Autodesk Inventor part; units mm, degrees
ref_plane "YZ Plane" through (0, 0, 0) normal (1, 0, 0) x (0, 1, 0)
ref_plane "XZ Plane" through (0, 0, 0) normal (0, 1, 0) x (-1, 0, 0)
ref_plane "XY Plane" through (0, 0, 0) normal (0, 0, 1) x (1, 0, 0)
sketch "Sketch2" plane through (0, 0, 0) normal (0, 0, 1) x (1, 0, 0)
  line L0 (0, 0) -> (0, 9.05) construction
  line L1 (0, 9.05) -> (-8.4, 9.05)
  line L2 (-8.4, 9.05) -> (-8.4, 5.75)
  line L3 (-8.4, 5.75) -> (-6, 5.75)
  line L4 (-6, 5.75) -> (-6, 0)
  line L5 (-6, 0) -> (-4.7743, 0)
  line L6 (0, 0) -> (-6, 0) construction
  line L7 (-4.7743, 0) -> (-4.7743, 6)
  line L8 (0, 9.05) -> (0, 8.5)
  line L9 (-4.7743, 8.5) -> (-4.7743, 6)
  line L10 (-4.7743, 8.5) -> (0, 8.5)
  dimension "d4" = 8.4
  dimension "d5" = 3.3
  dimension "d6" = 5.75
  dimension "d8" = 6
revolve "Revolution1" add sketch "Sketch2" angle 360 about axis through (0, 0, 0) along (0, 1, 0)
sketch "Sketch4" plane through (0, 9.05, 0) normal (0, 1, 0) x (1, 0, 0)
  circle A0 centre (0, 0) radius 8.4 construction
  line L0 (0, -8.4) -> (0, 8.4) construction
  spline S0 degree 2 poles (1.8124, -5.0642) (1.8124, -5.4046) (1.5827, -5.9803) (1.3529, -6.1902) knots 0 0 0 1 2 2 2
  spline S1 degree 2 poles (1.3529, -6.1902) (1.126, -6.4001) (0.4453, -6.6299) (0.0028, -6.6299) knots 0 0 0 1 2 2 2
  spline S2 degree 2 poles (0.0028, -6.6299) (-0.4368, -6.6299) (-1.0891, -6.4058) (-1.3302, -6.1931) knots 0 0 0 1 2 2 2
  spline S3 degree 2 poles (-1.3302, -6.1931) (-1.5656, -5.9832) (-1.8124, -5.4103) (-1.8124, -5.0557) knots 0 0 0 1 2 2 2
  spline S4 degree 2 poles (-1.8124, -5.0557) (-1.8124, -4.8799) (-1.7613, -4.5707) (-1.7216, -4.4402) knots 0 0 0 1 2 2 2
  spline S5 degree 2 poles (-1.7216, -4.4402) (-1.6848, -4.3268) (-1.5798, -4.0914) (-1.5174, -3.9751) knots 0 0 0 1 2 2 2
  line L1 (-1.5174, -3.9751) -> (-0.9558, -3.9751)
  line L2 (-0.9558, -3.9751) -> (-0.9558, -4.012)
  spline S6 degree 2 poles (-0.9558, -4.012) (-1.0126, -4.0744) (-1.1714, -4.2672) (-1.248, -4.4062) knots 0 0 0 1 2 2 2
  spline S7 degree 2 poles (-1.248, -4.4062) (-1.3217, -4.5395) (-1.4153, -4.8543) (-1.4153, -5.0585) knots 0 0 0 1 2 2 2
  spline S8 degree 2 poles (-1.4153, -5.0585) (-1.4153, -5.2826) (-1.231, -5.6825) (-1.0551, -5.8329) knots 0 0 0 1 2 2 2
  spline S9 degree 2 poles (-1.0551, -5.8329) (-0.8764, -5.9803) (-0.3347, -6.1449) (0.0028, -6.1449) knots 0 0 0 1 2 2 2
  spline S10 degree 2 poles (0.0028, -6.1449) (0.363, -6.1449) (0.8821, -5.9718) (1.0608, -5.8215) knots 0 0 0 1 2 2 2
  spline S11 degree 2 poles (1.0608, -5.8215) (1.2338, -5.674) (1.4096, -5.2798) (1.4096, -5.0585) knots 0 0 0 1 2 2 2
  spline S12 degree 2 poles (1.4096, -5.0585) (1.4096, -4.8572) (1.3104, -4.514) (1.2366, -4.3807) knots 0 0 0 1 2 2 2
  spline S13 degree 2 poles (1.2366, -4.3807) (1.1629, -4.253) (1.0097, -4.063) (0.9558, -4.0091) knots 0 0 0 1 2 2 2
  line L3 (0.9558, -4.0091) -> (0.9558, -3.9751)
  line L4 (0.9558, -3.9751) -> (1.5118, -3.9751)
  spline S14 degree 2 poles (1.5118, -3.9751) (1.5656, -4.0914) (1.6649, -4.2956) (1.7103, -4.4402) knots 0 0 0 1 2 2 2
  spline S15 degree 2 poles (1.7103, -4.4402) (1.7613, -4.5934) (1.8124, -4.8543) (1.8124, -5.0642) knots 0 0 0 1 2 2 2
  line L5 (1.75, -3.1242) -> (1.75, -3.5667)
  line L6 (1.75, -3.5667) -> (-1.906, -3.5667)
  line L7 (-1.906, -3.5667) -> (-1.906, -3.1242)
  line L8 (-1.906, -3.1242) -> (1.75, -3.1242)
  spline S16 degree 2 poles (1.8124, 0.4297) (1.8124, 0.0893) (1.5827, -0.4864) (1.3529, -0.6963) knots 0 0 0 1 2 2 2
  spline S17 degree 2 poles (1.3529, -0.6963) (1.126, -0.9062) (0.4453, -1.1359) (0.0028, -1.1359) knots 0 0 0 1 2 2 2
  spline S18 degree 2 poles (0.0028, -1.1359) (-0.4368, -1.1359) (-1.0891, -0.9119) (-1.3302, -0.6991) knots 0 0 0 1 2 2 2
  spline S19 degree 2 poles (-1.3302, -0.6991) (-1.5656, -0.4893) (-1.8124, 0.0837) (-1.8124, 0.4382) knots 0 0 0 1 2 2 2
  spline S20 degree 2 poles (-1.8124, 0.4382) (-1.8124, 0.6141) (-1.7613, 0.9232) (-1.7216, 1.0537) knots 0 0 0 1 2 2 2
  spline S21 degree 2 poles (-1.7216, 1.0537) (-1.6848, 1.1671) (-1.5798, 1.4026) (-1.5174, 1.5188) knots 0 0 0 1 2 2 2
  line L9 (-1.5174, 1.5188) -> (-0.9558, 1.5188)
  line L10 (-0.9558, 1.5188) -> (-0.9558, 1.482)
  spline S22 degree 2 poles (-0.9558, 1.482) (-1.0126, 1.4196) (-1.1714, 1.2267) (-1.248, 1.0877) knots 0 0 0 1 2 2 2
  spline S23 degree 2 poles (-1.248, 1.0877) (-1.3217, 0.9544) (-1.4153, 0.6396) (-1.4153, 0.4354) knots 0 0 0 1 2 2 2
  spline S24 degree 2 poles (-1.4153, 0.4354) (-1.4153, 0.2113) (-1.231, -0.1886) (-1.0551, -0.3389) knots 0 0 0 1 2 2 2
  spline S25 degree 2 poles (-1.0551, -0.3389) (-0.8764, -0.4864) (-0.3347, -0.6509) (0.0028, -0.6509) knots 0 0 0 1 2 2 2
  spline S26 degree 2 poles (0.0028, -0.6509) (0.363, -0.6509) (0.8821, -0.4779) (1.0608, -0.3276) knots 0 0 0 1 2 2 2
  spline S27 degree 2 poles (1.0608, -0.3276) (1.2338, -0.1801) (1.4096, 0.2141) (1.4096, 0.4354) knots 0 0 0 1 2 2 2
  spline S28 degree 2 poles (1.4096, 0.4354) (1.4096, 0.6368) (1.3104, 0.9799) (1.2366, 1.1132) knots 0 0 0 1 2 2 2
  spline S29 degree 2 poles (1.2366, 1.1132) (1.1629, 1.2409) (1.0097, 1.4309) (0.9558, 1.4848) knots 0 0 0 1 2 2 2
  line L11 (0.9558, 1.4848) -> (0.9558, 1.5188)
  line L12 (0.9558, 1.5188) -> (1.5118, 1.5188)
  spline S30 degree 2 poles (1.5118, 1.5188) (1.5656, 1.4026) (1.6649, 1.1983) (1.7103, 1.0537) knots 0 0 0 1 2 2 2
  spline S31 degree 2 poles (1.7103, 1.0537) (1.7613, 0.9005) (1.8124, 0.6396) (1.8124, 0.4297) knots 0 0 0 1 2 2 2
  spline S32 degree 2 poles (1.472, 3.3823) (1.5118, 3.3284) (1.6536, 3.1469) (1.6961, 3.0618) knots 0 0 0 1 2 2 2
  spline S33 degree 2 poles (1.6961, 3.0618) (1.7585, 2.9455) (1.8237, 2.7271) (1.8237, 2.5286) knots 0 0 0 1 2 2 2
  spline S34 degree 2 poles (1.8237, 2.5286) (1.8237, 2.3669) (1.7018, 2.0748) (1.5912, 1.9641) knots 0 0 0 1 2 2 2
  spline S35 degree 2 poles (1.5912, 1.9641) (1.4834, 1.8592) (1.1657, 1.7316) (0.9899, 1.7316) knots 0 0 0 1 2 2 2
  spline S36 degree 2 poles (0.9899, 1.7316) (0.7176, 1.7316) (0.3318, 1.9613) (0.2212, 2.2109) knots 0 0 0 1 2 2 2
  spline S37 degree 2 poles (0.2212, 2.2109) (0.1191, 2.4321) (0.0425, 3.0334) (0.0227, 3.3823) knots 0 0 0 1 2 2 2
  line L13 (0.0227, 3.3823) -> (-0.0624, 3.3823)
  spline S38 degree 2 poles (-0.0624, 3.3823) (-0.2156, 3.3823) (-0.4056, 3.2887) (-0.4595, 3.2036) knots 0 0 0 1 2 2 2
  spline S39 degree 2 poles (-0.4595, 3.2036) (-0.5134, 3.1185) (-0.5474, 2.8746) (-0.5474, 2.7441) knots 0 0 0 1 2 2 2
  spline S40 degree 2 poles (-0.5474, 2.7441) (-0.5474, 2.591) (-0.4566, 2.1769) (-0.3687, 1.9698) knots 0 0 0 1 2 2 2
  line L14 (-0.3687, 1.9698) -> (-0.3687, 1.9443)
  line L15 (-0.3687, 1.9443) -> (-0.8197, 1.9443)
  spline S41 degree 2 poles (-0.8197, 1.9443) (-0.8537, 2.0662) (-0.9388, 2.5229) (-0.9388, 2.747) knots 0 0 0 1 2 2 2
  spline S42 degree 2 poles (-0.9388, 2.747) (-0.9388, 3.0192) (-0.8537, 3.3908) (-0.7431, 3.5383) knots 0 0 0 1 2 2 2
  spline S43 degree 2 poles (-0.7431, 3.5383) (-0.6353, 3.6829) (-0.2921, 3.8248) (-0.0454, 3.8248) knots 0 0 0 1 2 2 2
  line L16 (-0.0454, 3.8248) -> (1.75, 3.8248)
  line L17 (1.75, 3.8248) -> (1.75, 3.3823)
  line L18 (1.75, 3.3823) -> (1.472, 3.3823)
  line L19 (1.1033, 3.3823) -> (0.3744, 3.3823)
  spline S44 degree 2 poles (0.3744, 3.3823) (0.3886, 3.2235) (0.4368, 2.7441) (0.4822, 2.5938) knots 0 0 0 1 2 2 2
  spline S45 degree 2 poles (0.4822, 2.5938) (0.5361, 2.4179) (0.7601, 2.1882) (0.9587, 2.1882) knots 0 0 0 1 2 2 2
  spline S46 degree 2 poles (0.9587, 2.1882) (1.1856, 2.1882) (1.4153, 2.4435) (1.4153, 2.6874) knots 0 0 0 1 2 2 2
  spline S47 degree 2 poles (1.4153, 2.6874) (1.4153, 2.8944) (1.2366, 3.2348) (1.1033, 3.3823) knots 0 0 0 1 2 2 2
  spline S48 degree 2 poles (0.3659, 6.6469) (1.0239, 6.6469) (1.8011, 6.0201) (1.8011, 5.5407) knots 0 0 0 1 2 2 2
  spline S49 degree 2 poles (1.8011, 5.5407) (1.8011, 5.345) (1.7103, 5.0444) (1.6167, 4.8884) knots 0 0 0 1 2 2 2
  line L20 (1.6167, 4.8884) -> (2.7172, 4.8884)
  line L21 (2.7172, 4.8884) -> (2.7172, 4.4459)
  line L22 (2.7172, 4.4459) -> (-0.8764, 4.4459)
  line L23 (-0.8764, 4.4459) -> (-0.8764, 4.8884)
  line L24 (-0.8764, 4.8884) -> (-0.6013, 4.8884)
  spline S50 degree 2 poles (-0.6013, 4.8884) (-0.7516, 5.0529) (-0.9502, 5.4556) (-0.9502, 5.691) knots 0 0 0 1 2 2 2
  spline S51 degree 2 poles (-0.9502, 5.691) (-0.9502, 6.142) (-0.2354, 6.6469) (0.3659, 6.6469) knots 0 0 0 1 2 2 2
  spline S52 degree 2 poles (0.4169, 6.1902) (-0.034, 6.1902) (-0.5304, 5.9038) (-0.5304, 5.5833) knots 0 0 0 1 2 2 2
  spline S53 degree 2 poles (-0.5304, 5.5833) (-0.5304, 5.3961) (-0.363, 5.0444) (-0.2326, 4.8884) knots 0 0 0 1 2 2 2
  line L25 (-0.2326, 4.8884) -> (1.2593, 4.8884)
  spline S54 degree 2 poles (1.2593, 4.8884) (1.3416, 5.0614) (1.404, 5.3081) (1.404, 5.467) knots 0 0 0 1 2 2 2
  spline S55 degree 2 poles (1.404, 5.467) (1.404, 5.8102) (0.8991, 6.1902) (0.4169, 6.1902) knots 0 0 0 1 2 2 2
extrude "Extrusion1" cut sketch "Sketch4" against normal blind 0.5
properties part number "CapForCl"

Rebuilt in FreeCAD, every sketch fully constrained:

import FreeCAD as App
import Part
import Sketcher
from FreeCAD import Vector


def add_polygon(sketch, points):
    """Adds a closed chain of lines whose ends are joined by coincident constraints."""
    first, n = sketch.GeometryCount, len(points)
    for a, b in zip(points, points[1:] + points[:1]):
        sketch.addGeometry(Part.LineSegment(App.Vector(*a, 0), App.Vector(*b, 0)), False)
    for i in range(n):
        sketch.addConstraint(Sketcher.Constraint("Coincident", first + i, 2, first + (i + 1) % n, 1))

doc = App.newDocument("Part")
body = doc.addObject("PartDesign::Body", "Body")

# Sketch on XY plane
sketch1 = doc.addObject("Sketcher::SketchObject", "Sketch")
body.addObject(sketch1)
sketch1.AttachmentSupport = (doc.XY_Plane, [""])
sketch1.MapMode = "FlatFace"
add_polygon(sketch1, [(0, 8.5), (0, 9.1), (-8.4, 9.1), (-8.4, 5.8), (-6, 5.8), (-6, 0), (-4.8, 0), (-4.8, 8.5)])  # lines 0-7
sketch1.addConstraint([
    Sketcher.Constraint("Vertical", 0),
    Sketcher.Constraint("Horizontal", 1),
    Sketcher.Constraint("Vertical", 2),
    Sketcher.Constraint("Horizontal", 3),
    Sketcher.Constraint("Vertical", 4),
    Sketcher.Constraint("Horizontal", 5),
    Sketcher.Constraint("Vertical", 6),
    Sketcher.Constraint("Horizontal", 7),
    Sketcher.Constraint("PointOnObject", 0, 2, -2),
    Sketcher.Constraint("PointOnObject", 4, 2, -1),
    Sketcher.Constraint("DistanceX", 1, 2, 1, 1, 8.4),
    Sketcher.Constraint("DistanceY", 2, 2, 2, 1, 3.3),
    Sketcher.Constraint("DistanceX", 3, 2, -1, 1, 6.0),
    Sketcher.Constraint("DistanceY", 4, 2, 4, 1, 5.75),
    Sketcher.Constraint("DistanceY", 6, 1, 6, 2, 8.5),
    Sketcher.Constraint("DistanceX", 5, 1, 5, 2, 1.2257),
])
revolution = doc.addObject("PartDesign::Revolution", "Revolution")
body.addObject(revolution)
revolution.Profile = sketch1
revolution.ReferenceAxis = (sketch1, ["V_Axis"])
revolution.Angle = 360

# Sketch on XZ plane
sketch2 = doc.addObject("Sketcher::SketchObject", "Sketch001")
body.addObject(sketch2)
sketch2.AttachmentSupport = (doc.XZ_Plane, [""])
sketch2.MapMode = "FlatFace"
sketch2.AttachmentOffset = App.Placement(Vector(0, 0, -9.05), App.Rotation())
sketch2.addGeometry(Part.BSplineCurve([Vector(1.8124, 5.0642, 0), Vector(1.8124, 5.4046, 0), Vector(1.5827, 5.9803, 0), Vector(1.3529, 6.1902, 0)], [3, 1, 3], [0, 1, 2], False, 2, [1, 1, 1, 1], False), False)  # 0
sketch2.addGeometry(Part.BSplineCurve([Vector(1.7103, 4.4402, 0), Vector(1.7613, 4.5934, 0), Vector(1.8124, 4.8543, 0), Vector(1.8124, 5.0642, 0)], [3, 1, 3], [0, 1, 2], False, 2, [1, 1, 1, 1], False), False)  # 1
sketch2.addGeometry(Part.BSplineCurve([Vector(1.5118, 3.9751, 0), Vector(1.5656, 4.0914, 0), Vector(1.6649, 4.2956, 0), Vector(1.7103, 4.4402, 0)], [3, 1, 3], [0, 1, 2], False, 2, [1, 1, 1, 1], False), False)  # 2
sketch2.addGeometry(Part.LineSegment(Vector(1.5118, 3.9751, 0), Vector(0.9558, 3.9751, 0)), False)  # 3
sketch2.addGeometry(Part.LineSegment(Vector(0.9558, 3.9751, 0), Vector(0.9558, 4.0091, 0)), False)  # 4
sketch2.addGeometry(Part.BSplineCurve([Vector(1.2366, 4.3807, 0), Vector(1.1629, 4.253, 0), Vector(1.0097, 4.063, 0), Vector(0.9558, 4.0091, 0)], [3, 1, 3], [0, 1, 2], False, 2, [1, 1, 1, 1], False), False)  # 5
sketch2.addGeometry(Part.BSplineCurve([Vector(1.4096, 5.0585, 0), Vector(1.4096, 4.8572, 0), Vector(1.3104, 4.514, 0), Vector(1.2366, 4.3807, 0)], [3, 1, 3], [0, 1, 2], False, 2, [1, 1, 1, 1], False), False)  # 6
sketch2.addGeometry(Part.BSplineCurve([Vector(1.0608, 5.8215, 0), Vector(1.2338, 5.674, 0), Vector(1.4096, 5.2798, 0), Vector(1.4096, 5.0585, 0)], [3, 1, 3], [0, 1, 2], False, 2, [1, 1, 1, 1], False), False)  # 7
sketch2.addGeometry(Part.BSplineCurve([Vector(0.0028, 6.1449, 0), Vector(0.363, 6.1449, 0), Vector(0.8821, 5.9718, 0), Vector(1.0608, 5.8215, 0)], [3, 1, 3], [0, 1, 2], False, 2, [1, 1, 1, 1], False), False)  # 8
sketch2.addGeometry(Part.BSplineCurve([Vector(-1.0551, 5.8329, 0), Vector(-0.8764, 5.9803, 0), Vector(-0.3347, 6.1449, 0), Vector(0.0028, 6.1449, 0)], [3, 1, 3], [0, 1, 2], False, 2, [1, 1, 1, 1], False), False)  # 9
sketch2.addGeometry(Part.BSplineCurve([Vector(-1.4153, 5.0585, 0), Vector(-1.4153, 5.2826, 0), Vector(-1.231, 5.6825, 0), Vector(-1.0551, 5.8329, 0)], [3, 1, 3], [0, 1, 2], False, 2, [1, 1, 1, 1], False), False)  # 10
sketch2.addGeometry(Part.BSplineCurve([Vector(-1.248, 4.4062, 0), Vector(-1.3217, 4.5395, 0), Vector(-1.4153, 4.8543, 0), Vector(-1.4153, 5.0585, 0)], [3, 1, 3], [0, 1, 2], False, 2, [1, 1, 1, 1], False), False)  # 11
sketch2.addGeometry(Part.BSplineCurve([Vector(-0.9558, 4.012, 0), Vector(-1.0126, 4.0744, 0), Vector(-1.1714, 4.2672, 0), Vector(-1.248, 4.4062, 0)], [3, 1, 3], [0, 1, 2], False, 2, [1, 1, 1, 1], False), False)  # 12
sketch2.addGeometry(Part.LineSegment(Vector(-0.9558, 4.012, 0), Vector(-0.9558, 3.9751, 0)), False)  # 13
sketch2.addGeometry(Part.LineSegment(Vector(-0.9558, 3.9751, 0), Vector(-1.5174, 3.9751, 0)), False)  # 14
sketch2.addGeometry(Part.BSplineCurve([Vector(-1.7216, 4.4402, 0), Vector(-1.6848, 4.3268, 0), Vector(-1.5798, 4.0914, 0), Vector(-1.5174, 3.9751, 0)], [3, 1, 3], [0, 1, 2], False, 2, [1, 1, 1, 1], False), False)  # 15
sketch2.addGeometry(Part.BSplineCurve([Vector(-1.8124, 5.0557, 0), Vector(-1.8124, 4.8799, 0), Vector(-1.7613, 4.5707, 0), Vector(-1.7216, 4.4402, 0)], [3, 1, 3], [0, 1, 2], False, 2, [1, 1, 1, 1], False), False)  # 16
sketch2.addGeometry(Part.BSplineCurve([Vector(-1.3302, 6.1931, 0), Vector(-1.5656, 5.9832, 0), Vector(-1.8124, 5.4103, 0), Vector(-1.8124, 5.0557, 0)], [3, 1, 3], [0, 1, 2], False, 2, [1, 1, 1, 1], False), False)  # 17
sketch2.addGeometry(Part.BSplineCurve([Vector(0.0028, 6.6299, 0), Vector(-0.4368, 6.6299, 0), Vector(-1.0891, 6.4058, 0), Vector(-1.3302, 6.1931, 0)], [3, 1, 3], [0, 1, 2], False, 2, [1, 1, 1, 1], False), False)  # 18
sketch2.addGeometry(Part.BSplineCurve([Vector(1.3529, 6.1902, 0), Vector(1.126, 6.4001, 0), Vector(0.4453, 6.6299, 0), Vector(0.0028, 6.6299, 0)], [3, 1, 3], [0, 1, 2], False, 2, [1, 1, 1, 1], False), False)  # 19
add_polygon(sketch2, [(1.75, 3.5667), (1.75, 3.1242), (-1.906, 3.1242), (-1.906, 3.5667)])  # lines 20-23
sketch2.addGeometry(Part.BSplineCurve([Vector(1.8124, -0.4297, 0), Vector(1.8124, -0.0893, 0), Vector(1.5827, 0.4864, 0), Vector(1.3529, 0.6963, 0)], [3, 1, 3], [0, 1, 2], False, 2, [1, 1, 1, 1], False), False)  # 24
sketch2.addGeometry(Part.BSplineCurve([Vector(1.7103, -1.0537, 0), Vector(1.7613, -0.9005, 0), Vector(1.8124, -0.6396, 0), Vector(1.8124, -0.4297, 0)], [3, 1, 3], [0, 1, 2], False, 2, [1, 1, 1, 1], False), False)  # 25
sketch2.addGeometry(Part.BSplineCurve([Vector(1.5118, -1.5188, 0), Vector(1.5656, -1.4026, 0), Vector(1.6649, -1.1983, 0), Vector(1.7103, -1.0537, 0)], [3, 1, 3], [0, 1, 2], False, 2, [1, 1, 1, 1], False), False)  # 26
sketch2.addGeometry(Part.LineSegment(Vector(1.5118, -1.5188, 0), Vector(0.9558, -1.5188, 0)), False)  # 27
sketch2.addGeometry(Part.LineSegment(Vector(0.9558, -1.5188, 0), Vector(0.9558, -1.4848, 0)), False)  # 28
sketch2.addGeometry(Part.BSplineCurve([Vector(1.2366, -1.1132, 0), Vector(1.1629, -1.2409, 0), Vector(1.0097, -1.4309, 0), Vector(0.9558, -1.4848, 0)], [3, 1, 3], [0, 1, 2], False, 2, [1, 1, 1, 1], False), False)  # 29
sketch2.addGeometry(Part.BSplineCurve([Vector(1.4096, -0.4354, 0), Vector(1.4096, -0.6368, 0), Vector(1.3104, -0.9799, 0), Vector(1.2366, -1.1132, 0)], [3, 1, 3], [0, 1, 2], False, 2, [1, 1, 1, 1], False), False)  # 30
sketch2.addGeometry(Part.BSplineCurve([Vector(1.0608, 0.3276, 0), Vector(1.2338, 0.1801, 0), Vector(1.4096, -0.2141, 0), Vector(1.4096, -0.4354, 0)], [3, 1, 3], [0, 1, 2], False, 2, [1, 1, 1, 1], False), False)  # 31
sketch2.addGeometry(Part.BSplineCurve([Vector(0.0028, 0.6509, 0), Vector(0.363, 0.6509, 0), Vector(0.8821, 0.4779, 0), Vector(1.0608, 0.3276, 0)], [3, 1, 3], [0, 1, 2], False, 2, [1, 1, 1, 1], False), False)  # 32
sketch2.addGeometry(Part.BSplineCurve([Vector(-1.0551, 0.3389, 0), Vector(-0.8764, 0.4864, 0), Vector(-0.3347, 0.6509, 0), Vector(0.0028, 0.6509, 0)], [3, 1, 3], [0, 1, 2], False, 2, [1, 1, 1, 1], False), False)  # 33
sketch2.addGeometry(Part.BSplineCurve([Vector(-1.4153, -0.4354, 0), Vector(-1.4153, -0.2113, 0), Vector(-1.231, 0.1886, 0), Vector(-1.0551, 0.3389, 0)], [3, 1, 3], [0, 1, 2], False, 2, [1, 1, 1, 1], False), False)  # 34
sketch2.addGeometry(Part.BSplineCurve([Vector(-1.248, -1.0877, 0), Vector(-1.3217, -0.9544, 0), Vector(-1.4153, -0.6396, 0), Vector(-1.4153, -0.4354, 0)], [3, 1, 3], [0, 1, 2], False, 2, [1, 1, 1, 1], False), False)  # 35
sketch2.addGeometry(Part.BSplineCurve([Vector(-0.9558, -1.482, 0), Vector(-1.0126, -1.4196, 0), Vector(-1.1714, -1.2267, 0), Vector(-1.248, -1.0877, 0)], [3, 1, 3], [0, 1, 2], False, 2, [1, 1, 1, 1], False), False)  # 36
sketch2.addGeometry(Part.LineSegment(Vector(-0.9558, -1.482, 0), Vector(-0.9558, -1.5188, 0)), False)  # 37
sketch2.addGeometry(Part.LineSegment(Vector(-0.9558, -1.5188, 0), Vector(-1.5174, -1.5188, 0)), False)  # 38
sketch2.addGeometry(Part.BSplineCurve([Vector(-1.7216, -1.0537, 0), Vector(-1.6848, -1.1671, 0), Vector(-1.5798, -1.4026, 0), Vector(-1.5174, -1.5188, 0)], [3, 1, 3], [0, 1, 2], False, 2, [1, 1, 1, 1], False), False)  # 39
sketch2.addGeometry(Part.BSplineCurve([Vector(-1.8124, -0.4382, 0), Vector(-1.8124, -0.6141, 0), Vector(-1.7613, -0.9232, 0), Vector(-1.7216, -1.0537, 0)], [3, 1, 3], [0, 1, 2], False, 2, [1, 1, 1, 1], False), False)  # 40
sketch2.addGeometry(Part.BSplineCurve([Vector(-1.3302, 0.6991, 0), Vector(-1.5656, 0.4893, 0), Vector(-1.8124, -0.0837, 0), Vector(-1.8124, -0.4382, 0)], [3, 1, 3], [0, 1, 2], False, 2, [1, 1, 1, 1], False), False)  # 41
sketch2.addGeometry(Part.BSplineCurve([Vector(0.0028, 1.1359, 0), Vector(-0.4368, 1.1359, 0), Vector(-1.0891, 0.9119, 0), Vector(-1.3302, 0.6991, 0)], [3, 1, 3], [0, 1, 2], False, 2, [1, 1, 1, 1], False), False)  # 42
sketch2.addGeometry(Part.BSplineCurve([Vector(1.3529, 0.6963, 0), Vector(1.126, 0.9062, 0), Vector(0.4453, 1.1359, 0), Vector(0.0028, 1.1359, 0)], [3, 1, 3], [0, 1, 2], False, 2, [1, 1, 1, 1], False), False)  # 43
sketch2.addGeometry(Part.BSplineCurve([Vector(1.472, -3.3823, 0), Vector(1.5118, -3.3284, 0), Vector(1.6536, -3.1469, 0), Vector(1.6961, -3.0618, 0)], [3, 1, 3], [0, 1, 2], False, 2, [1, 1, 1, 1], False), False)  # 44
sketch2.addGeometry(Part.LineSegment(Vector(1.472, -3.3823, 0), Vector(1.75, -3.3823, 0)), False)  # 45
sketch2.addGeometry(Part.LineSegment(Vector(1.75, -3.3823, 0), Vector(1.75, -3.8248, 0)), False)  # 46
sketch2.addGeometry(Part.LineSegment(Vector(1.75, -3.8248, 0), Vector(-0.0454, -3.8248, 0)), False)  # 47
sketch2.addGeometry(Part.BSplineCurve([Vector(-0.7431, -3.5383, 0), Vector(-0.6353, -3.6829, 0), Vector(-0.2921, -3.8248, 0), Vector(-0.0454, -3.8248, 0)], [3, 1, 3], [0, 1, 2], False, 2, [1, 1, 1, 1], False), False)  # 48
sketch2.addGeometry(Part.BSplineCurve([Vector(-0.9388, -2.747, 0), Vector(-0.9388, -3.0192, 0), Vector(-0.8537, -3.3908, 0), Vector(-0.7431, -3.5383, 0)], [3, 1, 3], [0, 1, 2], False, 2, [1, 1, 1, 1], False), False)  # 49
sketch2.addGeometry(Part.BSplineCurve([Vector(-0.8197, -1.9443, 0), Vector(-0.8537, -2.0662, 0), Vector(-0.9388, -2.5229, 0), Vector(-0.9388, -2.747, 0)], [3, 1, 3], [0, 1, 2], False, 2, [1, 1, 1, 1], False), False)  # 50
sketch2.addGeometry(Part.LineSegment(Vector(-0.8197, -1.9443, 0), Vector(-0.3687, -1.9443, 0)), False)  # 51
sketch2.addGeometry(Part.LineSegment(Vector(-0.3687, -1.9443, 0), Vector(-0.3687, -1.9698, 0)), False)  # 52
sketch2.addGeometry(Part.BSplineCurve([Vector(-0.5474, -2.7441, 0), Vector(-0.5474, -2.591, 0), Vector(-0.4566, -2.1769, 0), Vector(-0.3687, -1.9698, 0)], [3, 1, 3], [0, 1, 2], False, 2, [1, 1, 1, 1], False), False)  # 53
sketch2.addGeometry(Part.BSplineCurve([Vector(-0.4595, -3.2036, 0), Vector(-0.5134, -3.1185, 0), Vector(-0.5474, -2.8746, 0), Vector(-0.5474, -2.7441, 0)], [3, 1, 3], [0, 1, 2], False, 2, [1, 1, 1, 1], False), False)  # 54
sketch2.addGeometry(Part.BSplineCurve([Vector(-0.0624, -3.3823, 0), Vector(-0.2156, -3.3823, 0), Vector(-0.4056, -3.2887, 0), Vector(-0.4595, -3.2036, 0)], [3, 1, 3], [0, 1, 2], False, 2, [1, 1, 1, 1], False), False)  # 55
sketch2.addGeometry(Part.LineSegment(Vector(-0.0624, -3.3823, 0), Vector(0.0227, -3.3823, 0)), False)  # 56
sketch2.addGeometry(Part.BSplineCurve([Vector(0.2212, -2.2109, 0), Vector(0.1191, -2.4321, 0), Vector(0.0425, -3.0334, 0), Vector(0.0227, -3.3823, 0)], [3, 1, 3], [0, 1, 2], False, 2, [1, 1, 1, 1], False), False)  # 57
sketch2.addGeometry(Part.BSplineCurve([Vector(0.9899, -1.7316, 0), Vector(0.7176, -1.7316, 0), Vector(0.3318, -1.9613, 0), Vector(0.2212, -2.2109, 0)], [3, 1, 3], [0, 1, 2], False, 2, [1, 1, 1, 1], False), False)  # 58
sketch2.addGeometry(Part.BSplineCurve([Vector(1.5912, -1.9641, 0), Vector(1.4834, -1.8592, 0), Vector(1.1657, -1.7316, 0), Vector(0.9899, -1.7316, 0)], [3, 1, 3], [0, 1, 2], False, 2, [1, 1, 1, 1], False), False)  # 59
sketch2.addGeometry(Part.BSplineCurve([Vector(1.8237, -2.5286, 0), Vector(1.8237, -2.3669, 0), Vector(1.7018, -2.0748, 0), Vector(1.5912, -1.9641, 0)], [3, 1, 3], [0, 1, 2], False, 2, [1, 1, 1, 1], False), False)  # 60
sketch2.addGeometry(Part.BSplineCurve([Vector(1.6961, -3.0618, 0), Vector(1.7585, -2.9455, 0), Vector(1.8237, -2.7271, 0), Vector(1.8237, -2.5286, 0)], [3, 1, 3], [0, 1, 2], False, 2, [1, 1, 1, 1], False), False)  # 61
sketch2.addGeometry(Part.LineSegment(Vector(0.3744, -3.3823, 0), Vector(1.1033, -3.3823, 0)), False)  # 62
sketch2.addGeometry(Part.BSplineCurve([Vector(1.4153, -2.6874, 0), Vector(1.4153, -2.8944, 0), Vector(1.2366, -3.2348, 0), Vector(1.1033, -3.3823, 0)], [3, 1, 3], [0, 1, 2], False, 2, [1, 1, 1, 1], False), False)  # 63
sketch2.addGeometry(Part.BSplineCurve([Vector(0.9587, -2.1882, 0), Vector(1.1856, -2.1882, 0), Vector(1.4153, -2.4435, 0), Vector(1.4153, -2.6874, 0)], [3, 1, 3], [0, 1, 2], False, 2, [1, 1, 1, 1], False), False)  # 64
sketch2.addGeometry(Part.BSplineCurve([Vector(0.4822, -2.5938, 0), Vector(0.5361, -2.4179, 0), Vector(0.7601, -2.1882, 0), Vector(0.9587, -2.1882, 0)], [3, 1, 3], [0, 1, 2], False, 2, [1, 1, 1, 1], False), False)  # 65
sketch2.addGeometry(Part.BSplineCurve([Vector(0.3744, -3.3823, 0), Vector(0.3886, -3.2235, 0), Vector(0.4368, -2.7441, 0), Vector(0.4822, -2.5938, 0)], [3, 1, 3], [0, 1, 2], False, 2, [1, 1, 1, 1], False), False)  # 66
sketch2.addGeometry(Part.BSplineCurve([Vector(0.3659, -6.6469, 0), Vector(1.0239, -6.6469, 0), Vector(1.8011, -6.0201, 0), Vector(1.8011, -5.5407, 0)], [3, 1, 3], [0, 1, 2], False, 2, [1, 1, 1, 1], False), False)  # 67
sketch2.addGeometry(Part.BSplineCurve([Vector(-0.9502, -5.691, 0), Vector(-0.9502, -6.142, 0), Vector(-0.2354, -6.6469, 0), Vector(0.3659, -6.6469, 0)], [3, 1, 3], [0, 1, 2], False, 2, [1, 1, 1, 1], False), False)  # 68
sketch2.addGeometry(Part.BSplineCurve([Vector(-0.6013, -4.8884, 0), Vector(-0.7516, -5.0529, 0), Vector(-0.9502, -5.4556, 0), Vector(-0.9502, -5.691, 0)], [3, 1, 3], [0, 1, 2], False, 2, [1, 1, 1, 1], False), False)  # 69
sketch2.addGeometry(Part.LineSegment(Vector(-0.6013, -4.8884, 0), Vector(-0.8764, -4.8884, 0)), False)  # 70
sketch2.addGeometry(Part.LineSegment(Vector(-0.8764, -4.8884, 0), Vector(-0.8764, -4.4459, 0)), False)  # 71
sketch2.addGeometry(Part.LineSegment(Vector(-0.8764, -4.4459, 0), Vector(2.7172, -4.4459, 0)), False)  # 72
sketch2.addGeometry(Part.LineSegment(Vector(2.7172, -4.4459, 0), Vector(2.7172, -4.8884, 0)), False)  # 73
sketch2.addGeometry(Part.LineSegment(Vector(2.7172, -4.8884, 0), Vector(1.6167, -4.8884, 0)), False)  # 74
sketch2.addGeometry(Part.BSplineCurve([Vector(1.8011, -5.5407, 0), Vector(1.8011, -5.345, 0), Vector(1.7103, -5.0444, 0), Vector(1.6167, -4.8884, 0)], [3, 1, 3], [0, 1, 2], False, 2, [1, 1, 1, 1], False), False)  # 75
sketch2.addGeometry(Part.BSplineCurve([Vector(0.4169, -6.1902, 0), Vector(-0.034, -6.1902, 0), Vector(-0.5304, -5.9038, 0), Vector(-0.5304, -5.5833, 0)], [3, 1, 3], [0, 1, 2], False, 2, [1, 1, 1, 1], False), False)  # 76
sketch2.addGeometry(Part.BSplineCurve([Vector(1.404, -5.467, 0), Vector(1.404, -5.8102, 0), Vector(0.8991, -6.1902, 0), Vector(0.4169, -6.1902, 0)], [3, 1, 3], [0, 1, 2], False, 2, [1, 1, 1, 1], False), False)  # 77
sketch2.addGeometry(Part.BSplineCurve([Vector(1.2593, -4.8884, 0), Vector(1.3416, -5.0614, 0), Vector(1.404, -5.3081, 0), Vector(1.404, -5.467, 0)], [3, 1, 3], [0, 1, 2], False, 2, [1, 1, 1, 1], False), False)  # 78
sketch2.addGeometry(Part.LineSegment(Vector(1.2593, -4.8884, 0), Vector(-0.2326, -4.8884, 0)), False)  # 79
sketch2.addGeometry(Part.BSplineCurve([Vector(-0.5304, -5.5833, 0), Vector(-0.5304, -5.3961, 0), Vector(-0.363, -5.0444, 0), Vector(-0.2326, -4.8884, 0)], [3, 1, 3], [0, 1, 2], False, 2, [1, 1, 1, 1], False), False)  # 80
sketch2.addConstraint([
    Sketcher.Constraint("Block", 0),
    Sketcher.Constraint("Block", 1),
    Sketcher.Constraint("Block", 2),
    Sketcher.Constraint("Block", 5),
    Sketcher.Constraint("Block", 6),
    Sketcher.Constraint("Block", 7),
    Sketcher.Constraint("Block", 8),
    Sketcher.Constraint("Block", 9),
    Sketcher.Constraint("Block", 10),
    Sketcher.Constraint("Block", 11),
    Sketcher.Constraint("Block", 12),
    Sketcher.Constraint("Block", 15),
    Sketcher.Constraint("Block", 16),
    Sketcher.Constraint("Block", 17),
    Sketcher.Constraint("Block", 18),
    Sketcher.Constraint("Block", 19),
    Sketcher.Constraint("Block", 24),
    Sketcher.Constraint("Block", 25),
    Sketcher.Constraint("Block", 26),
    Sketcher.Constraint("Block", 29),
    Sketcher.Constraint("Block", 30),
    Sketcher.Constraint("Block", 31),
    Sketcher.Constraint("Block", 32),
    Sketcher.Constraint("Block", 33),
    Sketcher.Constraint("Block", 34),
    Sketcher.Constraint("Block", 35),
    Sketcher.Constraint("Block", 36),
    Sketcher.Constraint("Block", 39),
    Sketcher.Constraint("Block", 40),
    Sketcher.Constraint("Block", 41),
    Sketcher.Constraint("Block", 42),
    Sketcher.Constraint("Block", 43),
    Sketcher.Constraint("Block", 44),
    Sketcher.Constraint("Block", 48),
    Sketcher.Constraint("Block", 49),
    Sketcher.Constraint("Block", 50),
    Sketcher.Constraint("Block", 53),
    Sketcher.Constraint("Block", 54),
    Sketcher.Constraint("Block", 55),
    Sketcher.Constraint("Block", 57),
    Sketcher.Constraint("Block", 58),
    Sketcher.Constraint("Block", 59),
    Sketcher.Constraint("Block", 60),
    Sketcher.Constraint("Block", 61),
    Sketcher.Constraint("Block", 63),
    Sketcher.Constraint("Block", 64),
    Sketcher.Constraint("Block", 65),
    Sketcher.Constraint("Block", 66),
    Sketcher.Constraint("Block", 67),
    Sketcher.Constraint("Block", 68),
    Sketcher.Constraint("Block", 69),
    Sketcher.Constraint("Block", 75),
    Sketcher.Constraint("Block", 76),
    Sketcher.Constraint("Block", 77),
    Sketcher.Constraint("Block", 78),
    Sketcher.Constraint("Block", 80),
    Sketcher.Constraint("Coincident", 2, 1, 3, 1),
    Sketcher.Constraint("Coincident", 3, 2, 4, 1),
    Sketcher.Constraint("Coincident", 4, 2, 5, 2),
    Sketcher.Constraint("Coincident", 12, 1, 13, 1),
    Sketcher.Constraint("Coincident", 13, 2, 14, 1),
    Sketcher.Constraint("Coincident", 14, 2, 15, 2),
    Sketcher.Constraint("Coincident", 26, 1, 27, 1),
    Sketcher.Constraint("Coincident", 27, 2, 28, 1),
    Sketcher.Constraint("Coincident", 28, 2, 29, 2),
    Sketcher.Constraint("Coincident", 36, 1, 37, 1),
    Sketcher.Constraint("Coincident", 37, 2, 38, 1),
    Sketcher.Constraint("Coincident", 38, 2, 39, 2),
    Sketcher.Constraint("Coincident", 44, 1, 45, 1),
    Sketcher.Constraint("Coincident", 45, 2, 46, 1),
    Sketcher.Constraint("Coincident", 46, 2, 47, 1),
    Sketcher.Constraint("Coincident", 47, 2, 48, 2),
    Sketcher.Constraint("Coincident", 50, 1, 51, 1),
    Sketcher.Constraint("Coincident", 51, 2, 52, 1),
    Sketcher.Constraint("Coincident", 52, 2, 53, 2),
    Sketcher.Constraint("Coincident", 55, 1, 56, 1),
    Sketcher.Constraint("Coincident", 56, 2, 57, 2),
    Sketcher.Constraint("Coincident", 62, 2, 63, 2),
    Sketcher.Constraint("Coincident", 66, 1, 62, 1),
    Sketcher.Constraint("Coincident", 69, 1, 70, 1),
    Sketcher.Constraint("Coincident", 70, 2, 71, 1),
    Sketcher.Constraint("Coincident", 71, 2, 72, 1),
    Sketcher.Constraint("Coincident", 72, 2, 73, 1),
    Sketcher.Constraint("Coincident", 73, 2, 74, 1),
    Sketcher.Constraint("Coincident", 74, 2, 75, 2),
    Sketcher.Constraint("Coincident", 78, 1, 79, 1),
    Sketcher.Constraint("Coincident", 79, 2, 80, 2),
    Sketcher.Constraint("Horizontal", 3),
    Sketcher.Constraint("Vertical", 4),
    Sketcher.Constraint("Vertical", 13),
    Sketcher.Constraint("Horizontal", 14),
    Sketcher.Constraint("Vertical", 20),
    Sketcher.Constraint("Horizontal", 21),
    Sketcher.Constraint("Vertical", 22),
    Sketcher.Constraint("Horizontal", 23),
    Sketcher.Constraint("Horizontal", 27),
    Sketcher.Constraint("Vertical", 28),
    Sketcher.Constraint("Vertical", 37),
    Sketcher.Constraint("Horizontal", 38),
    Sketcher.Constraint("Horizontal", 45),
    Sketcher.Constraint("Vertical", 46),
    Sketcher.Constraint("Horizontal", 47),
    Sketcher.Constraint("Horizontal", 51),
    Sketcher.Constraint("Vertical", 52),
    Sketcher.Constraint("Horizontal", 70),
    Sketcher.Constraint("Vertical", 71),
    Sketcher.Constraint("Horizontal", 72),
    Sketcher.Constraint("Vertical", 73),
    Sketcher.Constraint("Horizontal", 74),
    Sketcher.Constraint("DistanceX", 21, 2, 21, 1, 3.656),
    Sketcher.Constraint("DistanceX", 45, 1, 45, 2, 0.278),
    Sketcher.Constraint("DistanceX", 70, 2, 70, 1, 0.275),
    Sketcher.Constraint("DistanceX", -1, 1, 20, 2, 1.75),
    Sketcher.Constraint("DistanceX", 72, 1, 72, 2, 3.5936),
    Sketcher.Constraint("DistanceY", 20, 2, 20, 1, 0.4425),
    Sketcher.Constraint("DistanceY", 71, 1, 71, 2, 0.4425),
    Sketcher.Constraint("DistanceY", 20, 2, 3, 2, 0.851),
])
pocket1 = doc.addObject("PartDesign::Pocket", "Pocket")
body.addObject(pocket1)
pocket1.Profile = sketch2
pocket1.Length = 0.5
pocket1.Reversed = True

doc.recompute()
